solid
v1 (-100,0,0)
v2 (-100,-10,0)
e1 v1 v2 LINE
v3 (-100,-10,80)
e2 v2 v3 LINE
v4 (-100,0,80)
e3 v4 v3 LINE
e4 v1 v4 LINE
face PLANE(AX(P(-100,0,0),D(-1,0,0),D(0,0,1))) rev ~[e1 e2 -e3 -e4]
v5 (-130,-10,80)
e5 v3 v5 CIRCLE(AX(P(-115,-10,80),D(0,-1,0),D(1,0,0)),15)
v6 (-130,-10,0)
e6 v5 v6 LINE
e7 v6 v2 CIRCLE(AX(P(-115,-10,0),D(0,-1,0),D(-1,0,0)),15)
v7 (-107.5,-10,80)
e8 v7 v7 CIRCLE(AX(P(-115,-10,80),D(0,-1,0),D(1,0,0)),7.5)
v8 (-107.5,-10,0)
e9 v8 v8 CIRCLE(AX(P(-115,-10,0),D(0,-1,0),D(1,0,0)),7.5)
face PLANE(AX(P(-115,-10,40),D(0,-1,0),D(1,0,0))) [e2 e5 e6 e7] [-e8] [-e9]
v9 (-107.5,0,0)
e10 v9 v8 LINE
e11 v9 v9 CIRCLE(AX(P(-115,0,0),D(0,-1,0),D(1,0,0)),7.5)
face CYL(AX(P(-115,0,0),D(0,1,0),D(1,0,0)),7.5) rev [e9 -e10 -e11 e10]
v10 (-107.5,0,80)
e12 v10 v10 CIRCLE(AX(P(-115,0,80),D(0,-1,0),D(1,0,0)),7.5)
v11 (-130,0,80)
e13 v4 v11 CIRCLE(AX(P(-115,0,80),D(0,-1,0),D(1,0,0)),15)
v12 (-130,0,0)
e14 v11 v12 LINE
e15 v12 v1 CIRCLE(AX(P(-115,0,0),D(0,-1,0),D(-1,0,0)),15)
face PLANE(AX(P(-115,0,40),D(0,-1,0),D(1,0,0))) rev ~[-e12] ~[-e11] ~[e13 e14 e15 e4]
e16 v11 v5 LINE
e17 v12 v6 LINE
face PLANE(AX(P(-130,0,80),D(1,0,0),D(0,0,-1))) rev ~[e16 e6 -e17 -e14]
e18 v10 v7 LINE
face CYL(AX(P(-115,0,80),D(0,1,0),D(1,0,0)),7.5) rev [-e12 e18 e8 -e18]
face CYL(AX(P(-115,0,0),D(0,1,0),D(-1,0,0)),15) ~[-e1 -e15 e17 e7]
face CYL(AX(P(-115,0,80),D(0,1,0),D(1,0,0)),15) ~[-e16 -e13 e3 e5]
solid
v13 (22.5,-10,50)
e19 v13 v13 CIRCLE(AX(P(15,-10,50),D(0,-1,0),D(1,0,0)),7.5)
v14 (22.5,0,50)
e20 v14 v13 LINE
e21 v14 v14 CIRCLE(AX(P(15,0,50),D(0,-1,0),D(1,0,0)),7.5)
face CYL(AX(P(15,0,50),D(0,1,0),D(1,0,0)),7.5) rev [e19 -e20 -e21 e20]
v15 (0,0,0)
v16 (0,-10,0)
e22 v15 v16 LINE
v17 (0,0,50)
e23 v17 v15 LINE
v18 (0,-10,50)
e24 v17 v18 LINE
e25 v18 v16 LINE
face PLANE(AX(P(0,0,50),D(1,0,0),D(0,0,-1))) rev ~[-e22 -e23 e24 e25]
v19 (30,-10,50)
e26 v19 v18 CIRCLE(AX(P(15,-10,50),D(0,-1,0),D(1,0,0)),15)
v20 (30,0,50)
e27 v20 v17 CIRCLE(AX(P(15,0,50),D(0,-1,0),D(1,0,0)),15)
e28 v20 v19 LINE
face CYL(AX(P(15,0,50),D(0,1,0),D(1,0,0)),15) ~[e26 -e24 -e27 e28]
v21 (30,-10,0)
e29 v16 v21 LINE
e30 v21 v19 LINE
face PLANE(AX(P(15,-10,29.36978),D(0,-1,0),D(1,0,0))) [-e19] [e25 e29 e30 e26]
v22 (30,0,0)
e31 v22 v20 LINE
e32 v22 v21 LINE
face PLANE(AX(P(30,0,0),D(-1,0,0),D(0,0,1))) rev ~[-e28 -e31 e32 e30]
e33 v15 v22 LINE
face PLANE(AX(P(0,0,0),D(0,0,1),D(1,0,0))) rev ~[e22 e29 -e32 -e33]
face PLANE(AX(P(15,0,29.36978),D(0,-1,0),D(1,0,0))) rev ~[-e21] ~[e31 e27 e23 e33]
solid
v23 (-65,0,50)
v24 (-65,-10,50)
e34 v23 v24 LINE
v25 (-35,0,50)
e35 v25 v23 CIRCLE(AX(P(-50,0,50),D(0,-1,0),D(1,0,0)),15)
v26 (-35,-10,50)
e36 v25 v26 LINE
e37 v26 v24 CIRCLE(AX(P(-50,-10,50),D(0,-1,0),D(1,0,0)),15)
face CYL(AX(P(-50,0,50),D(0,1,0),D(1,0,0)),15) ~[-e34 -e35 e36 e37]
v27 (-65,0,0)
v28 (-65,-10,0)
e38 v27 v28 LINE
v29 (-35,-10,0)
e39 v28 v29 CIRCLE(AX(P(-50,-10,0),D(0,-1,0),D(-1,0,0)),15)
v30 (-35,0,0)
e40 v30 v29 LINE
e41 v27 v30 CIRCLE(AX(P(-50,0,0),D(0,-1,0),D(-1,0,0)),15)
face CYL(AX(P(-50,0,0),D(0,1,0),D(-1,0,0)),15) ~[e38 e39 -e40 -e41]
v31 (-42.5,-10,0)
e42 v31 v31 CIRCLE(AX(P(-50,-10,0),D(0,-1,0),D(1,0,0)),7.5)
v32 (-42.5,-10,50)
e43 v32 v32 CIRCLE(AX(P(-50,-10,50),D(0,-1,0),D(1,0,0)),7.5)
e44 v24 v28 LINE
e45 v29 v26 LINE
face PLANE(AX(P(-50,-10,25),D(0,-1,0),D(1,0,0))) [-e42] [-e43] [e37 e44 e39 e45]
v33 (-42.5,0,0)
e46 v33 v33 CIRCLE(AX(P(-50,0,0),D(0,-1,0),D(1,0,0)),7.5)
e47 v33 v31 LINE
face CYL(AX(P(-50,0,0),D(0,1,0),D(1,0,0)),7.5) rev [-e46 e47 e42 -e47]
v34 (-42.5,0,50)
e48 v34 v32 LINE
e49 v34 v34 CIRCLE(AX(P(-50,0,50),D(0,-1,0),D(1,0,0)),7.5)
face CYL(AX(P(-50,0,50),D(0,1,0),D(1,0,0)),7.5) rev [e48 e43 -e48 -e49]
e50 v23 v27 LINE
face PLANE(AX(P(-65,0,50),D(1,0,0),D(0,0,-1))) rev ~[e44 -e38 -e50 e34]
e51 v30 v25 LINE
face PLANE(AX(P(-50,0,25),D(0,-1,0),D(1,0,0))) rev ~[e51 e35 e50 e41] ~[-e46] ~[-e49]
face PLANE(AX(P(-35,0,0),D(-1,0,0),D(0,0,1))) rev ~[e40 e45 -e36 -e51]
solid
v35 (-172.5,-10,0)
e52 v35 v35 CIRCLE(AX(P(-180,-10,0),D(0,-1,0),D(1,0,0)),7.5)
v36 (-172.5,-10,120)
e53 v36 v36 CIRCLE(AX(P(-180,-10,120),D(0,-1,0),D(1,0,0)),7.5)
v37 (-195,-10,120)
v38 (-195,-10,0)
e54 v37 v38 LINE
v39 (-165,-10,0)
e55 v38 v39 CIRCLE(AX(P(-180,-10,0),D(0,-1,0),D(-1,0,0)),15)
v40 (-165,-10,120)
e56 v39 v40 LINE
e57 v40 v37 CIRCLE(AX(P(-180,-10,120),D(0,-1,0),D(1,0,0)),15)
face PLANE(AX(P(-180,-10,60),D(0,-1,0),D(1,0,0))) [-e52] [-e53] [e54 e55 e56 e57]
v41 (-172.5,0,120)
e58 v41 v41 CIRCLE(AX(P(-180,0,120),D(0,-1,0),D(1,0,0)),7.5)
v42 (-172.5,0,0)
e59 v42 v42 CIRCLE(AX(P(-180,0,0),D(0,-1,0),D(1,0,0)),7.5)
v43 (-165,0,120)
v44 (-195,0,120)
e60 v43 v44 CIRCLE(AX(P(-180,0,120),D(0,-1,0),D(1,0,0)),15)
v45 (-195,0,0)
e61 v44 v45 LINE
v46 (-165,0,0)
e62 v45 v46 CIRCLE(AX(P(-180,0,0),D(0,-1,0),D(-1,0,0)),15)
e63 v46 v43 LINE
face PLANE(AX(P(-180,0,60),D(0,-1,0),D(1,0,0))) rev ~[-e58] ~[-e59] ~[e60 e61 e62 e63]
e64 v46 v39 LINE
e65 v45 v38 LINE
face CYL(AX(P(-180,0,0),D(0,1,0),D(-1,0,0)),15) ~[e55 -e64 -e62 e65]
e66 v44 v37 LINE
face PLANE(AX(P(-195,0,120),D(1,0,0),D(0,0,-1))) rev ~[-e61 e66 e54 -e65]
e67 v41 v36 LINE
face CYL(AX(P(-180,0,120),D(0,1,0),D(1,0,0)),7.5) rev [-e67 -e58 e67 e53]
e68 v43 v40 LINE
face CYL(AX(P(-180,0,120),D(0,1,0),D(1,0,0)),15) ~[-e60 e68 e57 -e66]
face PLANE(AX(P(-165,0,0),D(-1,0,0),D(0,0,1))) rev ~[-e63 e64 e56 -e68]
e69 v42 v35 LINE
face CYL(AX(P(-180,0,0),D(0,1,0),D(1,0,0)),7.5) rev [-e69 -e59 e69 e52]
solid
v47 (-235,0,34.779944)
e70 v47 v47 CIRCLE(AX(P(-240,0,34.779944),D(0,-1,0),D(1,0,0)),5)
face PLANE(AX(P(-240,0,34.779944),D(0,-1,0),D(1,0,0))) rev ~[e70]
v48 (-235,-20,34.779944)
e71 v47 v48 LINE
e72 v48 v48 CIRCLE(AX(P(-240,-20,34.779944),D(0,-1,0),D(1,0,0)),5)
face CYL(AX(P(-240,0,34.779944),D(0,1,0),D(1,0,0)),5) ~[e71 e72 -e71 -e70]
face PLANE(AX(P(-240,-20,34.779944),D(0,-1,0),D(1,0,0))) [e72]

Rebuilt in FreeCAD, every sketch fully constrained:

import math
import FreeCAD as App
import Part
import Sketcher
from FreeCAD import Vector

doc = App.newDocument("Part")
body = doc.addObject("PartDesign::Body", "Body")

# Sketch on XZ plane
sketch1 = body.newObject("Sketcher::SketchObject", "Sketch")
sketch1.AttachmentSupport = (doc.getObject("XZ_Plane"), [""])
sketch1.MapMode = "FlatFace"
sketch1.addGeometry(Part.LineSegment(Vector(0, 50, 0), Vector(0, 0, 0)), False)
sketch1.addGeometry(Part.LineSegment(Vector(0, 0, 0), Vector(30, 0, 0)), False)
sketch1.addGeometry(Part.LineSegment(Vector(30, 0, 0), Vector(30, 50, 0)), False)
sketch1.addGeometry(Part.ArcOfCircle(Part.Circle(Vector(15, 50, 0), Vector(0, 0, 1), 15), math.radians(0), math.radians(180)), False)
sketch1.addGeometry(Part.Circle(Vector(15, 50, 0), Vector(0, 0, 1), 8), False)
sketch1.addConstraint(Sketcher.Constraint("Coincident", 0, 2, 1, 1))
sketch1.addConstraint(Sketcher.Constraint("Coincident", 1, 2, 2, 1))
sketch1.addConstraint(Sketcher.Constraint("Tangent", 2, 2, 3, 1))
sketch1.addConstraint(Sketcher.Constraint("Tangent", 3, 2, 0, 1))
sketch1.addConstraint(Sketcher.Constraint("Vertical", 0))
sketch1.addConstraint(Sketcher.Constraint("Horizontal", 1))
sketch1.addConstraint(Sketcher.Constraint("Vertical", 2))
sketch1.addConstraint(Sketcher.Constraint("Coincident", 0, 2, -1, 1))
sketch1.addConstraint(Sketcher.Constraint("Coincident", 4, 3, 3, 3))
sketch1.addConstraint(Sketcher.Constraint("Diameter", 4, 15.0))
sketch1.addConstraint(Sketcher.Constraint("Radius", 3, 15.0))
sketch1.addConstraint(Sketcher.Constraint("DistanceY", 0, 2, 0, 1, 50.0))
pad1 = body.newObject("PartDesign::Pad", "Pad")
pad1.Profile = sketch1
pad1.Length = 10
body2 = doc.addObject("PartDesign::Body", "Body001")

# Sketch on XZ plane
sketch2 = body2.newObject("Sketcher::SketchObject", "Sketch001")
sketch2.AttachmentSupport = (doc.getObject("XZ_Plane001"), [""])
sketch2.MapMode = "FlatFace"
sketch2.addGeometry(Part.LineSegment(Vector(-65, 50, 0), Vector(-65, 0, 0)), False)
sketch2.addGeometry(Part.ArcOfCircle(Part.Circle(Vector(-50, 0, 0), Vector(0, 0, 1), 15), math.radians(180), math.radians(360)), False)
sketch2.addGeometry(Part.LineSegment(Vector(-35, 0, 0), Vector(-35, 50, 0)), False)
sketch2.addGeometry(Part.ArcOfCircle(Part.Circle(Vector(-50, 50, 0), Vector(0, 0, 1), 15), math.radians(0), math.radians(180)), False)
sketch2.addGeometry(Part.Circle(Vector(-50, 0, 0), Vector(0, 0, 1), 8), False)
sketch2.addGeometry(Part.Circle(Vector(-50, 50, 0), Vector(0, 0, 1), 8), False)
sketch2.addConstraint(Sketcher.Constraint("Tangent", 0, 2, 1, 1))
sketch2.addConstraint(Sketcher.Constraint("Tangent", 1, 2, 2, 1))
sketch2.addConstraint(Sketcher.Constraint("Tangent", 2, 2, 3, 1))
sketch2.addConstraint(Sketcher.Constraint("Tangent", 3, 2, 0, 1))
sketch2.addConstraint(Sketcher.Constraint("Vertical", 0))
sketch2.addConstraint(Sketcher.Constraint("Vertical", 2))
sketch2.addConstraint(Sketcher.Constraint("Coincident", 4, 3, 1, 3))
sketch2.addConstraint(Sketcher.Constraint("Coincident", 5, 3, 3, 3))
sketch2.addConstraint(Sketcher.Constraint("Equal", 4, 5))
sketch2.addConstraint(Sketcher.Constraint("PointOnObject", 1, 3, -1))
sketch2.addConstraint(Sketcher.Constraint("Diameter", 4, 15.0))
sketch2.addConstraint(Sketcher.Constraint("Radius", 1, 15.0))
sketch2.addConstraint(Sketcher.Constraint("DistanceY", 0, 2, 0, 1, 50.0))
sketch2.addConstraint(Sketcher.Constraint("DistanceX", 1, 3, -1, 1, 50.0))
pad2 = body2.newObject("PartDesign::Pad", "Pad001")
pad2.Profile = sketch2
pad2.Length = 10
body3 = doc.addObject("PartDesign::Body", "Body002")

# Sketch on XZ plane
sketch3 = body3.newObject("Sketcher::SketchObject", "Sketch002")
sketch3.AttachmentSupport = (doc.getObject("XZ_Plane002"), [""])
sketch3.MapMode = "FlatFace"
sketch3.addGeometry(Part.LineSegment(Vector(-130, 80, 0), Vector(-130, 0, 0)), False)
sketch3.addGeometry(Part.ArcOfCircle(Part.Circle(Vector(-115, 0, 0), Vector(0, 0, 1), 15), math.radians(180), math.radians(360)), False)
sketch3.addGeometry(Part.LineSegment(Vector(-100, 0, 0), Vector(-100, 80, 0)), False)
sketch3.addGeometry(Part.ArcOfCircle(Part.Circle(Vector(-115, 80, 0), Vector(0, 0, 1), 15), math.radians(0), math.radians(180)), False)
sketch3.addGeometry(Part.Circle(Vector(-115, 0, 0), Vector(0, 0, 1), 8), False)
sketch3.addGeometry(Part.Circle(Vector(-115, 80, 0), Vector(0, 0, 1), 8), False)
sketch3.addConstraint(Sketcher.Constraint("Tangent", 0, 2, 1, 1))
sketch3.addConstraint(Sketcher.Constraint("Tangent", 1, 2, 2, 1))
sketch3.addConstraint(Sketcher.Constraint("Tangent", 2, 2, 3, 1))
sketch3.addConstraint(Sketcher.Constraint("Tangent", 3, 2, 0, 1))
sketch3.addConstraint(Sketcher.Constraint("Vertical", 0))
sketch3.addConstraint(Sketcher.Constraint("Vertical", 2))
sketch3.addConstraint(Sketcher.Constraint("Coincident", 4, 3, 1, 3))
sketch3.addConstraint(Sketcher.Constraint("Coincident", 5, 3, 3, 3))
sketch3.addConstraint(Sketcher.Constraint("Equal", 4, 5))
sketch3.addConstraint(Sketcher.Constraint("PointOnObject", 1, 3, -1))
sketch3.addConstraint(Sketcher.Constraint("Diameter", 4, 15.0))
sketch3.addConstraint(Sketcher.Constraint("Radius", 1, 15.0))
sketch3.addConstraint(Sketcher.Constraint("DistanceY", 0, 2, 0, 1, 80.0))
sketch3.addConstraint(Sketcher.Constraint("DistanceX", 1, 3, -1, 1, 115.0))
pad3 = body3.newObject("PartDesign::Pad", "Pad002")
pad3.Profile = sketch3
pad3.Length = 10
body4 = doc.addObject("PartDesign::Body", "Body003")

# Sketch on XZ plane
sketch4 = body4.newObject("Sketcher::SketchObject", "Sketch003")
sketch4.AttachmentSupport = (doc.getObject("XZ_Plane003"), [""])
sketch4.MapMode = "FlatFace"
sketch4.addGeometry(Part.LineSegment(Vector(-195, 120, 0), Vector(-195, 0, 0)), False)
sketch4.addGeometry(Part.ArcOfCircle(Part.Circle(Vector(-180, 0, 0), Vector(0, 0, 1), 15), math.radians(180), math.radians(360)), False)
sketch4.addGeometry(Part.LineSegment(Vector(-165, 0, 0), Vector(-165, 120, 0)), False)
sketch4.addGeometry(Part.ArcOfCircle(Part.Circle(Vector(-180, 120, 0), Vector(0, 0, 1), 15), math.radians(0), math.radians(180)), False)
sketch4.addGeometry(Part.Circle(Vector(-180, 0, 0), Vector(0, 0, 1), 8), False)
sketch4.addGeometry(Part.Circle(Vector(-180, 120, 0), Vector(0, 0, 1), 8), False)
sketch4.addConstraint(Sketcher.Constraint("Tangent", 0, 2, 1, 1))
sketch4.addConstraint(Sketcher.Constraint("Tangent", 1, 2, 2, 1))
sketch4.addConstraint(Sketcher.Constraint("Tangent", 2, 2, 3, 1))
sketch4.addConstraint(Sketcher.Constraint("Tangent", 3, 2, 0, 1))
sketch4.addConstraint(Sketcher.Constraint("Vertical", 0))
sketch4.addConstraint(Sketcher.Constraint("Vertical", 2))
sketch4.addConstraint(Sketcher.Constraint("Coincident", 4, 3, 1, 3))
sketch4.addConstraint(Sketcher.Constraint("Coincident", 5, 3, 3, 3))
sketch4.addConstraint(Sketcher.Constraint("Equal", 4, 5))
sketch4.addConstraint(Sketcher.Constraint("PointOnObject", 1, 3, -1))
sketch4.addConstraint(Sketcher.Constraint("Diameter", 4, 15.0))
sketch4.addConstraint(Sketcher.Constraint("Radius", 1, 15.0))
sketch4.addConstraint(Sketcher.Constraint("DistanceY", 0, 2, 0, 1, 120.0))
sketch4.addConstraint(Sketcher.Constraint("DistanceX", 1, 3, -1, 1, 180.0))
pad4 = body4.newObject("PartDesign::Pad", "Pad003")
pad4.Profile = sketch4
pad4.Length = 10
body5 = doc.addObject("PartDesign::Body", "Body004")

# Sketch on XZ plane
sketch5 = body5.newObject("Sketcher::SketchObject", "Sketch004")
sketch5.AttachmentSupport = (doc.getObject("XZ_Plane004"), [""])
sketch5.MapMode = "FlatFace"
sketch5.addGeometry(Part.Circle(Vector(-240, 35, 0), Vector(0, 0, 1), 5), False)
sketch5.addConstraint(Sketcher.Constraint("Diameter", 0, 10.0))
sketch5.addConstraint(Sketcher.Constraint("DistanceX", 0, 3, -1, 1, 240.0))
sketch5.addConstraint(Sketcher.Constraint("DistanceY", -1, 1, 0, 3, 34.779944))
pad5 = body5.newObject("PartDesign::Pad", "Pad004")
pad5.Profile = sketch5
pad5.Length = 20

doc.recompute()
